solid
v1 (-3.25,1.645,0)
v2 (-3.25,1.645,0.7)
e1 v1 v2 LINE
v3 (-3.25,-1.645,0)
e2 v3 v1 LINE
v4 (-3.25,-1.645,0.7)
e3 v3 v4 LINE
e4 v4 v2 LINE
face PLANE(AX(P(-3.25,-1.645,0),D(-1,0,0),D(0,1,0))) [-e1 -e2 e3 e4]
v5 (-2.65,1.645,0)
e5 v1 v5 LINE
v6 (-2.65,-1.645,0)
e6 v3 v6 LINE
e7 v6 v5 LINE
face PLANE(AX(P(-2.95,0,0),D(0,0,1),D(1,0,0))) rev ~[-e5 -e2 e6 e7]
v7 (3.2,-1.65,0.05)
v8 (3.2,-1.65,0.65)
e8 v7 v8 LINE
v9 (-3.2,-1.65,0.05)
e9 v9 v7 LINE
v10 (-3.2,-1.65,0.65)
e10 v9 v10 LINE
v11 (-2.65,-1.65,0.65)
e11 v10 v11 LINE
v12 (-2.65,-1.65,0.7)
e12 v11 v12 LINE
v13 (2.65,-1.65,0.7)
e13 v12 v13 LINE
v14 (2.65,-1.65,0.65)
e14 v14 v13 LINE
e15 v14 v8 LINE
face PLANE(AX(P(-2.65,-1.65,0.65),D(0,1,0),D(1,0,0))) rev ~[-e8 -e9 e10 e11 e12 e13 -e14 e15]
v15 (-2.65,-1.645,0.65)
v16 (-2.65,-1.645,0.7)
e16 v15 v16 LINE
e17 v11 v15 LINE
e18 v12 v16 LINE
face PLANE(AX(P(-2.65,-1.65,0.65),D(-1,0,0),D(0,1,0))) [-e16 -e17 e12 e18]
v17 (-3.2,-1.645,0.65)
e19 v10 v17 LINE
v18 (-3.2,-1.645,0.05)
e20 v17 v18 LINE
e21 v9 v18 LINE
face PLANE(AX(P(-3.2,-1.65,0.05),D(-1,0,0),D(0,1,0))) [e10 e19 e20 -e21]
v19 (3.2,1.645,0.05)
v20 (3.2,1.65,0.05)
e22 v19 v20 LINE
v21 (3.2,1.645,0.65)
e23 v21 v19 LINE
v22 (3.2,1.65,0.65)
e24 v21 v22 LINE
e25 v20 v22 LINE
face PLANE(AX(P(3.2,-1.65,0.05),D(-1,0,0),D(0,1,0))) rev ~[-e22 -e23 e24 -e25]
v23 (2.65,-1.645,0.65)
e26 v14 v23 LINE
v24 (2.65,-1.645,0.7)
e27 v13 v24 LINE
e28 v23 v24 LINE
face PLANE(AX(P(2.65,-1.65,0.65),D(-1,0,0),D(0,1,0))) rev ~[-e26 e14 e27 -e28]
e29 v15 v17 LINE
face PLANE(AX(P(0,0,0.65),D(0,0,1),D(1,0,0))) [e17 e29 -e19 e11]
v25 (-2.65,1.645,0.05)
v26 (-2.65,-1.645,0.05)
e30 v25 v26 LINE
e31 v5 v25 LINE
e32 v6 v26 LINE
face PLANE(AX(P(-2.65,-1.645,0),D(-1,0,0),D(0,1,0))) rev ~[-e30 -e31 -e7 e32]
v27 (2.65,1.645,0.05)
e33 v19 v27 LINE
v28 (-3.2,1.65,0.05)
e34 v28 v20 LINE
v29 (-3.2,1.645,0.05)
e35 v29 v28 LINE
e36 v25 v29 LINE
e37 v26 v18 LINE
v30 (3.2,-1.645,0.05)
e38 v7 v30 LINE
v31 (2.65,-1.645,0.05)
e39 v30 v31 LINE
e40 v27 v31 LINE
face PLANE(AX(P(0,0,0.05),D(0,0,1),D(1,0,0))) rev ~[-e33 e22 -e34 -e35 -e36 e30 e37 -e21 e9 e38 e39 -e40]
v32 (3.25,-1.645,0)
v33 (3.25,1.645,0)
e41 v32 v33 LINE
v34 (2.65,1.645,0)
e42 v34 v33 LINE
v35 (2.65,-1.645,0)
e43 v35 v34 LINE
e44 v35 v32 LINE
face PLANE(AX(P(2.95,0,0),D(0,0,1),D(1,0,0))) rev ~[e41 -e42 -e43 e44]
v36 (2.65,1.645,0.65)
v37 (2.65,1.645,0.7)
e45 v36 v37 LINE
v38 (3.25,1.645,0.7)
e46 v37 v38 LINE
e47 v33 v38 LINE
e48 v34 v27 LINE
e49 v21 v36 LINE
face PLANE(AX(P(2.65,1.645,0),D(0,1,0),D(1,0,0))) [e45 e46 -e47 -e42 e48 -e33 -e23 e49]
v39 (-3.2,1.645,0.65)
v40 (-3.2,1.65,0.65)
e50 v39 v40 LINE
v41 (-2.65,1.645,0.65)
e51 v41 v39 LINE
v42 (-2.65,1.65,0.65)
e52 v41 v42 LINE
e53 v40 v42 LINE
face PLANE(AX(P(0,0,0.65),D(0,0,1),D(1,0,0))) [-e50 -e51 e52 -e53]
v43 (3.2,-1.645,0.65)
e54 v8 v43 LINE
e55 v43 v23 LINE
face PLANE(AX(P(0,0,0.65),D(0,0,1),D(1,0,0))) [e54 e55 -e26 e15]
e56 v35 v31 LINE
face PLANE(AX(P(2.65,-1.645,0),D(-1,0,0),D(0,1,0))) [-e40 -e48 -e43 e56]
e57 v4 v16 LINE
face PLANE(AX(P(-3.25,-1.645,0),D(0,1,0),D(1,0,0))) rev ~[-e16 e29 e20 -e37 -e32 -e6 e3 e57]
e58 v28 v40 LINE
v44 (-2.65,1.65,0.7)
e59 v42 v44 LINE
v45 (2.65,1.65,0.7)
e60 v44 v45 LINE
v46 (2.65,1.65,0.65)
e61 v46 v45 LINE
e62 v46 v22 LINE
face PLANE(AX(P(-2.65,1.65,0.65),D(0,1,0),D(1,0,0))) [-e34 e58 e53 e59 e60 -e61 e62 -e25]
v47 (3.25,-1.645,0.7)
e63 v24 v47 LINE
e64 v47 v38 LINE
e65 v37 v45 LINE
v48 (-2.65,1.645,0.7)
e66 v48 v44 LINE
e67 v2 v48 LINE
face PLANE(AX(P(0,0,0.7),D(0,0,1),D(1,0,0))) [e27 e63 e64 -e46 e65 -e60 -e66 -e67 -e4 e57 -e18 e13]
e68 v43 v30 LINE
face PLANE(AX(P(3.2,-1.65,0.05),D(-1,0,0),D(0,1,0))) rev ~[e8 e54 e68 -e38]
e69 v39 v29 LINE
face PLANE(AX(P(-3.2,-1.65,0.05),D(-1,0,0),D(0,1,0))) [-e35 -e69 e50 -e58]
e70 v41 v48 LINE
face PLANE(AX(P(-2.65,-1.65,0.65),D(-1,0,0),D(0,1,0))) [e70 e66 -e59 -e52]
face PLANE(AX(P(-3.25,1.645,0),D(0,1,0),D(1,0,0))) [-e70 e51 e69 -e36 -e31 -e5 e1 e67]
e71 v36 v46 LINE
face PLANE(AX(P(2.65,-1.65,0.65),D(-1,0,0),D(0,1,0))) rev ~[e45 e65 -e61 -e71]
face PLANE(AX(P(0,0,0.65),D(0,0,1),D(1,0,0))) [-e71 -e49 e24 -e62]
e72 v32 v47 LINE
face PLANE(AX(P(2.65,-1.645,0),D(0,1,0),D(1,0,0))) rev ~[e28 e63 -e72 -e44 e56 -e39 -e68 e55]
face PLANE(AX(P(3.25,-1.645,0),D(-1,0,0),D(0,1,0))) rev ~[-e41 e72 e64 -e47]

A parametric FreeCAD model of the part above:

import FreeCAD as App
import Part
import Sketcher

V = App.Vector


def add_polygon(sketch, points):
    """Adds a closed chain of lines whose ends are joined by coincident constraints."""
    first, n = sketch.GeometryCount, len(points)
    for a, b in zip(points, points[1:] + points[:1]):
        sketch.addGeometry(Part.LineSegment(App.Vector(*a, 0), App.Vector(*b, 0)), False)
    for i in range(n):
        sketch.addConstraint(Sketcher.Constraint("Coincident", first + i, 2, first + (i + 1) % n, 1))

doc = App.newDocument("Part")
body = doc.addObject("PartDesign::Body", "Body")

# Sketch on XY plane
sketch1 = body.newObject("Sketcher::SketchObject", "Sketch")
sketch1.AttachmentSupport = (doc.getObject("XY_Plane"), [""])
sketch1.MapMode = "FlatFace"
add_polygon(sketch1, [(-3.2, 1.6), (-3.2, -1.6), (-2.6, -1.6), (-2.6, 1.6)])  # lines 0-3
sketch1.addConstraint(Sketcher.Constraint("Vertical", 0))
sketch1.addConstraint(Sketcher.Constraint("Horizontal", 1))
sketch1.addConstraint(Sketcher.Constraint("Vertical", 2))
sketch1.addConstraint(Sketcher.Constraint("Horizontal", 3))
sketch1.addConstraint(Sketcher.Constraint("DistanceX", 1, 1, 1, 2, 0.6))
sketch1.addConstraint(Sketcher.Constraint("DistanceY", 0, 2, 0, 1, 3.29))
sketch1.addConstraint(Sketcher.Constraint("DistanceX", 0, 2, -1, 1, 3.25))
sketch1.addConstraint(Sketcher.Constraint("DistanceY", 0, 2, -1, 1, 1.645))
pad1 = body.newObject("PartDesign::Pad", "Pad")
pad1.Profile = sketch1
pad1.Length = 0.7
body2 = doc.addObject("PartDesign::Body", "Body001")

# Sketch on XY plane
sketch2 = body2.newObject("Sketcher::SketchObject", "Sketch001")
sketch2.AttachmentSupport = (doc.getObject("XY_Plane001"), [""])
sketch2.MapMode = "FlatFace"
add_polygon(sketch2, [(2.6, 1.6), (2.6, -1.6), (3.2, -1.6), (3.2, 1.6)])  # lines 0-3
sketch2.addConstraint(Sketcher.Constraint("Vertical", 0))
sketch2.addConstraint(Sketcher.Constraint("Horizontal", 1))
sketch2.addConstraint(Sketcher.Constraint("Vertical", 2))
sketch2.addConstraint(Sketcher.Constraint("Horizontal", 3))
sketch2.addConstraint(Sketcher.Constraint("DistanceX", 1, 1, 1, 2, 0.6))
sketch2.addConstraint(Sketcher.Constraint("DistanceY", 0, 2, 0, 1, 3.29))
sketch2.addConstraint(Sketcher.Constraint("DistanceX", -1, 1, 0, 2, 2.65))
sketch2.addConstraint(Sketcher.Constraint("DistanceY", 0, 2, -1, 1, 1.645))
pad2 = body2.newObject("PartDesign::Pad", "Pad001")
pad2.Profile = sketch2
pad2.Length = 0.7
body3 = doc.addObject("PartDesign::Body", "Body002")

# Sketch on XY plane
sketch3 = body3.newObject("Sketcher::SketchObject", "Sketch002")
sketch3.AttachmentSupport = (doc.getObject("XY_Plane002"), [""])
sketch3.MapMode = "FlatFace"
sketch3.AttachmentOffset = App.Placement(V(0, 0, 0.65), App.Rotation())
add_polygon(sketch3, [(-2.6, 1.6), (-2.6, -1.6), (2.6, -1.6), (2.6, 1.6)])  # lines 0-3
sketch3.addConstraint(Sketcher.Constraint("Vertical", 0))
sketch3.addConstraint(Sketcher.Constraint("Horizontal", 1))
sketch3.addConstraint(Sketcher.Constraint("Vertical", 2))
sketch3.addConstraint(Sketcher.Constraint("Horizontal", 3))
sketch3.addConstraint(Sketcher.Constraint("Symmetric", 0, 2, 2, 2, -1, 1))
sketch3.addConstraint(Sketcher.Constraint("DistanceX", 1, 1, 1, 2, 5.3))
sketch3.addConstraint(Sketcher.Constraint("DistanceY", 0, 2, 0, 1, 3.3))
pad3 = body3.newObject("PartDesign::Pad", "Pad002")
pad3.Profile = sketch3
pad3.Length = 0.05
body4 = doc.addObject("PartDesign::Body", "Body003")

# Sketch on XY plane
sketch4 = body4.newObject("Sketcher::SketchObject", "Sketch003")
sketch4.AttachmentSupport = (doc.getObject("XY_Plane003"), [""])
sketch4.MapMode = "FlatFace"
sketch4.AttachmentOffset = App.Placement(V(0, 0, 0.05), App.Rotation())
add_polygon(sketch4, [(-3.2, 1.6), (-3.2, -1.6), (3.2, -1.6), (3.2, 1.6)])  # lines 0-3
sketch4.addConstraint(Sketcher.Constraint("Vertical", 0))
sketch4.addConstraint(Sketcher.Constraint("Horizontal", 1))
sketch4.addConstraint(Sketcher.Constraint("Vertical", 2))
sketch4.addConstraint(Sketcher.Constraint("Horizontal", 3))
sketch4.addConstraint(Sketcher.Constraint("Symmetric", 0, 2, 2, 2, -1, 1))
sketch4.addConstraint(Sketcher.Constraint("DistanceX", 1, 1, 1, 2, 6.4))
sketch4.addConstraint(Sketcher.Constraint("DistanceY", 0, 2, 0, 1, 3.3))
pad4 = body4.newObject("PartDesign::Pad", "Pad003")
pad4.Profile = sketch4
pad4.Length = 0.6
doc.recompute()

boolean = body4.newObject("PartDesign::Boolean", "Boolean")
boolean.Type = "Fuse"
boolean.addObjects([body])
doc.recompute()

boolean2 = body4.newObject("PartDesign::Boolean", "Boolean001")
boolean2.Type = "Fuse"
boolean2.addObjects([body2])
doc.recompute()

boolean3 = body4.newObject("PartDesign::Boolean", "Boolean002")
boolean3.Type = "Fuse"
boolean3.addObjects([body3])

doc.recompute()
